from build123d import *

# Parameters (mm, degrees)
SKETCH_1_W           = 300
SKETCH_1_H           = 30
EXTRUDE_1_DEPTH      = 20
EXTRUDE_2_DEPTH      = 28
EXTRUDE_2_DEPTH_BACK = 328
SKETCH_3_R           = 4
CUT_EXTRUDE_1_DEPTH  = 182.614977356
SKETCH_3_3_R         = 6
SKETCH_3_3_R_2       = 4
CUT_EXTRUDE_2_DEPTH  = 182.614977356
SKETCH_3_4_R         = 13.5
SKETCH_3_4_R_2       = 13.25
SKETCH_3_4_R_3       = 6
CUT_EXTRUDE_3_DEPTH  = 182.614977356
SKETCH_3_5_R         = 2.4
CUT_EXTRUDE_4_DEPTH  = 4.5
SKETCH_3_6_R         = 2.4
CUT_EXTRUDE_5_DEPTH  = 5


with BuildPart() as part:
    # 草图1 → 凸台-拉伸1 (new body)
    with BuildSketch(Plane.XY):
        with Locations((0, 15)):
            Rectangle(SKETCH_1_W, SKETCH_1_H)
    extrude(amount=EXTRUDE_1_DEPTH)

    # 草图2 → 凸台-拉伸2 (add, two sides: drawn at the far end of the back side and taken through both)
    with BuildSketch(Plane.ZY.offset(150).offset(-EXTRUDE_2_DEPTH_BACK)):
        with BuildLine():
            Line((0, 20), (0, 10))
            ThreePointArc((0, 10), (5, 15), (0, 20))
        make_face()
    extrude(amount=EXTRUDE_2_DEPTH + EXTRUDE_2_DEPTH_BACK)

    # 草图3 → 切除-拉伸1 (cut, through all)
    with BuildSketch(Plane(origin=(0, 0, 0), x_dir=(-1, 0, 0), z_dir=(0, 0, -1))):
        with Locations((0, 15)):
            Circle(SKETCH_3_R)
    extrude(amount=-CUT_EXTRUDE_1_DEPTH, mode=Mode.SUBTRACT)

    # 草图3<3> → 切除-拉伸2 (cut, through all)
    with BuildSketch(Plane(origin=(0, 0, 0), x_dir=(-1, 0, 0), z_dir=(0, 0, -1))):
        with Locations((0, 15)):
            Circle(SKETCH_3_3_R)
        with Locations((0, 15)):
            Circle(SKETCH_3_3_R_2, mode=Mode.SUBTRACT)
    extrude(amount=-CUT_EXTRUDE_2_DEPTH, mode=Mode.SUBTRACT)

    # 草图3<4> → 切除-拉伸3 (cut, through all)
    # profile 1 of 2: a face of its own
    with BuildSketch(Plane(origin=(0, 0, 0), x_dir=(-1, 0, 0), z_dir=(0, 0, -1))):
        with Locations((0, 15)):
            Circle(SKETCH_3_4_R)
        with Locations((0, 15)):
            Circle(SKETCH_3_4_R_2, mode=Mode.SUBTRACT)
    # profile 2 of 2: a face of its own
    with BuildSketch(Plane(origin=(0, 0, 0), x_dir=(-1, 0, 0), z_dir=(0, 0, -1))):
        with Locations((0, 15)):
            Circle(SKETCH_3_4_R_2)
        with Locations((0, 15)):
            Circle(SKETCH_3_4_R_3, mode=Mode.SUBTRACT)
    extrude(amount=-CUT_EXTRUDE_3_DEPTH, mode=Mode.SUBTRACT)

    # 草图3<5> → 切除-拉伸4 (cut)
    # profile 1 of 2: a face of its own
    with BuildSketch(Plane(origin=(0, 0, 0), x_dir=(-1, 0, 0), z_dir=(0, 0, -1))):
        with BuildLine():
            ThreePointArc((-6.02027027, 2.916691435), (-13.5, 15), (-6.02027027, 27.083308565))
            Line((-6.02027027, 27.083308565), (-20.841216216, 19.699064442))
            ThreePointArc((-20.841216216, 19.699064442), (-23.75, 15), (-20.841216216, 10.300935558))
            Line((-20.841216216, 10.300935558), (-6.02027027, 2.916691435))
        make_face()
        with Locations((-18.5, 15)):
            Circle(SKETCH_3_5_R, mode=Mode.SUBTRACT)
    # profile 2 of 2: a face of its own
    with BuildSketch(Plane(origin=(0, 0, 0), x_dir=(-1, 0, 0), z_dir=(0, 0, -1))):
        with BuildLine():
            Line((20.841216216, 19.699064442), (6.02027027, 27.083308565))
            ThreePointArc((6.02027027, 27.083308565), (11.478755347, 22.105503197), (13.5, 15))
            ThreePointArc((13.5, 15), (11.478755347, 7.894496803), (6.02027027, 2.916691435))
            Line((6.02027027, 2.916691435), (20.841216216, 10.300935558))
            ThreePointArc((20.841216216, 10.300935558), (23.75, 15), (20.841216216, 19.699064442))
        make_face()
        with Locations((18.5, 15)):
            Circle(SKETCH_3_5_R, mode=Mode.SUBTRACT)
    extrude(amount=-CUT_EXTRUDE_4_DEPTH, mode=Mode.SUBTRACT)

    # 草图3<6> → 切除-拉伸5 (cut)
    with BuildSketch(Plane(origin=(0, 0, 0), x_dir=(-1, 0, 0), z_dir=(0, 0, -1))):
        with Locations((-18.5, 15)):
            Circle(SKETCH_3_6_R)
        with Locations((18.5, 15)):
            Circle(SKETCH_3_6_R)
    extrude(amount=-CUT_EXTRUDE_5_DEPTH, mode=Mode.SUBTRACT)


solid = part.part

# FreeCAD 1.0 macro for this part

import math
import FreeCAD as App
import Part
import Sketcher
from FreeCAD import Vector
Q = App.Units.Quantity


def add_polygon(sketch, points):
    """Adds a closed chain of lines whose ends are joined by coincident constraints."""
    first, n = sketch.GeometryCount, len(points)
    for a, b in zip(points, points[1:] + points[:1]):
        sketch.addGeometry(Part.LineSegment(App.Vector(*a, 0), App.Vector(*b, 0)), False)
    for i in range(n):
        sketch.addConstraint(Sketcher.Constraint("Coincident", first + i, 2, first + (i + 1) % n, 1))

doc = App.newDocument("Part")
body = doc.addObject("PartDesign::Body", "Body")

# Sketch on XY plane
sketch1 = body.newObject("Sketcher::SketchObject", "Sketch")
sketch1.AttachmentSupport = (doc.getObject("XY_Plane"), [""])
sketch1.MapMode = "FlatFace"
add_polygon(sketch1, [(-150, 30), (-150, 0), (150, 0), (150, 30)])  # lines 0-3
sketch1.addConstraint([
    Sketcher.Constraint("Vertical", 0),
    Sketcher.Constraint("Horizontal", 1),
    Sketcher.Constraint("Vertical", 2),
    Sketcher.Constraint("Horizontal", 3),
    Sketcher.Constraint("Symmetric", 0, 2, 1, 2, -1, 1),
    Sketcher.Constraint("DistanceX", 1, 1, 1, 2, Q("300 mm")),
    Sketcher.Constraint("DistanceY", 0, 2, 0, 1, Q("30 mm")),
])
pad1 = body.newObject("PartDesign::Pad", "Pad")
pad1.Profile = sketch1
pad1.Length = 20

# Sketch on YZ plane
sketch2 = body.newObject("Sketcher::SketchObject", "Sketch001")
sketch2.AttachmentSupport = (doc.getObject("YZ_Plane"), [""])
sketch2.MapMode = "FlatFace"
sketch2.AttachmentOffset = App.Placement(Vector(0, 0, -150), App.Rotation())
sketch2.addGeometry([
    Part.LineSegment(Vector(20, 0, 0), Vector(10, 0, 0)),
    Part.ArcOfCircle(Part.Circle(Vector(15, 0, 0), Vector(0, 0, 1), 5), math.radians(0), math.radians(180)),
], False)
sketch2.addConstraint([
    Sketcher.Constraint("Coincident", 0, 1, 1, 1),
    Sketcher.Constraint("Coincident", 1, 2, 0, 2),
    Sketcher.Constraint("Horizontal", 0),
    Sketcher.Constraint("PointOnObject", 1, 3, -1),
    Sketcher.Constraint("PointOnObject", 0, 1, -1),
    Sketcher.Constraint("Radius", 1, Q("5 mm")),
    Sketcher.Constraint("DistanceX", -1, 1, 1, 3, Q("15 mm")),
])
pad2 = body.newObject("PartDesign::Pad", "Pad001")
pad2.Profile = sketch2
pad2.Type = "TwoLengths"
pad2.Length = 28
pad2.Length2 = 328
pad2.Reversed = True

# Sketch on XY plane
sketch3 = body.newObject("Sketcher::SketchObject", "Sketch002")
sketch3.AttachmentSupport = (doc.getObject("XY_Plane"), [""])
sketch3.MapMode = "FlatFace"
sketch3.addGeometry(Part.Circle(Vector(0, 15, 0), Vector(0, 0, 1), 4), False)
sketch3.addConstraint([
    Sketcher.Constraint("PointOnObject", 0, 3, -2),
    Sketcher.Constraint("Diameter", 0, Q("8 mm")),
    Sketcher.Constraint("DistanceY", -1, 1, 0, 3, Q("15 mm")),
])
pocket1 = body.newObject("PartDesign::Pocket", "Pocket")
pocket1.Profile = sketch3
pocket1.Type = "ThroughAll"
pocket1.Reversed = True

# Sketch on XY plane
sketch4 = body.newObject("Sketcher::SketchObject", "Sketch003")
sketch4.AttachmentSupport = (doc.getObject("XY_Plane"), [""])
sketch4.MapMode = "FlatFace"
sketch4.addGeometry([
    Part.Circle(Vector(0, 15, 0), Vector(0, 0, 1), 6),
    Part.Circle(Vector(0, 15, 0), Vector(0, 0, 1), 4),
], False)
sketch4.addConstraint([
    Sketcher.Constraint("Coincident", 1, 3, 0, 3),
    Sketcher.Constraint("PointOnObject", 0, 3, -2),
    Sketcher.Constraint("Diameter", 0, Q("12 mm")),
    Sketcher.Constraint("Diameter", 1, Q("8 mm")),
    Sketcher.Constraint("DistanceY", -1, 1, 0, 3, Q("15 mm")),
])
pocket2 = body.newObject("PartDesign::Pocket", "Pocket001")
pocket2.Profile = sketch4
pocket2.Type = "ThroughAll"
pocket2.Reversed = True

# Sketch on XY plane
sketch5 = body.newObject("Sketcher::SketchObject", "Sketch004")
sketch5.AttachmentSupport = (doc.getObject("XY_Plane"), [""])
sketch5.MapMode = "FlatFace"
sketch5.addGeometry([
    Part.Circle(Vector(0, 15, 0), Vector(0, 0, 1), 14),
    Part.Circle(Vector(0, 15, 0), Vector(0, 0, 1), 6),
], False)
sketch5.addConstraint([
    Sketcher.Constraint("Coincident", 1, 3, 0, 3),
    Sketcher.Constraint("PointOnObject", 0, 3, -2),
    Sketcher.Constraint("Diameter", 0, Q("27 mm")),
    Sketcher.Constraint("Diameter", 1, Q("12 mm")),
    Sketcher.Constraint("DistanceY", -1, 1, 0, 3, Q("15 mm")),
])
pocket3 = body.newObject("PartDesign::Pocket", "Pocket002")
pocket3.Profile = sketch5
pocket3.Length = 182.614977
pocket3.Reversed = True

# Sketch on XY plane
sketch6 = body.newObject("Sketcher::SketchObject", "Sketch005")
sketch6.AttachmentSupport = (doc.getObject("XY_Plane"), [""])
sketch6.MapMode = "FlatFace"
sketch6.addGeometry([
    Part.ArcOfCircle(Part.Circle(Vector(0, 15, 0), Vector(0, 0, 1), 13.5), math.radians(-64), math.radians(64)),  # 0
    Part.LineSegment(Vector(6, 27.1, 0), Vector(20.8, 19.7, 0)),  # 1
    Part.ArcOfCircle(Part.Circle(Vector(18.5, 15, 0), Vector(0, 0, 1), 5.2), math.radians(-64), math.radians(64)),  # 2
    Part.LineSegment(Vector(20.8, 10.3, 0), Vector(6, 2.9, 0)),  # 3
    Part.Circle(Vector(18.5, 15, 0), Vector(0, 0, 1), 2.4),  # 4
    Part.LineSegment(Vector(-20.8, 19.7, 0), Vector(-6, 27.1, 0)),  # 5
    Part.ArcOfCircle(Part.Circle(Vector(0, 15, 0), Vector(0, 0, 1), 13.5), math.radians(116), math.radians(180)),  # 6
    Part.ArcOfCircle(Part.Circle(Vector(0, 15, 0), Vector(0, 0, 1), 13.5), math.radians(180), math.radians(244)),  # 7
    Part.LineSegment(Vector(-6, 2.9, 0), Vector(-20.8, 10.3, 0)),  # 8
    Part.ArcOfCircle(Part.Circle(Vector(-18.5, 15, 0), Vector(0, 0, 1), 5.2), math.radians(116), math.radians(244)),  # 9
    Part.Circle(Vector(-18.5, 15, 0), Vector(0, 0, 1), 2.4),  # 10
], False)
sketch6.addConstraint([
    Sketcher.Constraint("Tangent", 0, 2, 1, 1),
    Sketcher.Constraint("Tangent", 1, 2, 2, 2),
    Sketcher.Constraint("Tangent", 2, 1, 3, 1),
    Sketcher.Constraint("Tangent", 3, 2, 0, 1),
    Sketcher.Constraint("Tangent", 5, 2, 6, 1),
    Sketcher.Constraint("Tangent", 6, 2, 7, 1),
    Sketcher.Constraint("Tangent", 7, 2, 8, 1),
    Sketcher.Constraint("Tangent", 8, 2, 9, 2),
    Sketcher.Constraint("Tangent", 9, 1, 5, 1),
    Sketcher.Constraint("Coincident", 4, 3, 2, 3),
    Sketcher.Constraint("Coincident", 6, 3, 0, 3),
    Sketcher.Constraint("Coincident", 10, 3, 9, 3),
    Sketcher.Constraint("Equal", 0, 6),
    Sketcher.Constraint("Equal", 6, 7),
    Sketcher.Constraint("Equal", 2, 9),
    Sketcher.Constraint("Equal", 4, 10),
    Sketcher.Constraint("Symmetric", 2, 3, 9, 3, -2),
    Sketcher.Constraint("PointOnObject", 0, 3, -2),
    Sketcher.Constraint("Parallel", 3, 5),
    Sketcher.Constraint("Horizontal", 10, 3, 6, 2),
    Sketcher.Constraint("Diameter", 4, Q("4.8 mm")),
    Sketcher.Constraint("Radius", 0, Q("13.5 mm")),
    Sketcher.Constraint("Radius", 2, Q("5.25 mm")),
    Sketcher.Constraint("DistanceY", -1, 1, 0, 3, Q("15 mm")),
    Sketcher.Constraint("DistanceX", 9, 3, 2, 3, Q("37 mm")),
])
pocket4 = body.newObject("PartDesign::Pocket", "Pocket003")
pocket4.Profile = sketch6
pocket4.Length = 4.5
pocket4.Reversed = True

# Sketch on XY plane
sketch7 = body.newObject("Sketcher::SketchObject", "Sketch006")
sketch7.AttachmentSupport = (doc.getObject("XY_Plane"), [""])
sketch7.MapMode = "FlatFace"
sketch7.addGeometry([
    Part.Circle(Vector(18.5, 15, 0), Vector(0, 0, 1), 2.4),
    Part.Circle(Vector(-18.5, 15, 0), Vector(0, 0, 1), 2.4),
], False)
sketch7.addConstraint([
    Sketcher.Constraint("Equal", 0, 1),
    Sketcher.Constraint("Symmetric", 0, 3, 1, 3, -2),
    Sketcher.Constraint("Diameter", 0, Q("4.8 mm")),
    Sketcher.Constraint("DistanceY", -1, 1, 0, 3, Q("15 mm")),
    Sketcher.Constraint("DistanceX", 1, 3, 0, 3, Q("37 mm")),
])
pocket5 = body.newObject("PartDesign::Pocket", "Pocket004")
pocket5.Profile = sketch7
pocket5.Length = 5
pocket5.Reversed = True

doc.recompute()
